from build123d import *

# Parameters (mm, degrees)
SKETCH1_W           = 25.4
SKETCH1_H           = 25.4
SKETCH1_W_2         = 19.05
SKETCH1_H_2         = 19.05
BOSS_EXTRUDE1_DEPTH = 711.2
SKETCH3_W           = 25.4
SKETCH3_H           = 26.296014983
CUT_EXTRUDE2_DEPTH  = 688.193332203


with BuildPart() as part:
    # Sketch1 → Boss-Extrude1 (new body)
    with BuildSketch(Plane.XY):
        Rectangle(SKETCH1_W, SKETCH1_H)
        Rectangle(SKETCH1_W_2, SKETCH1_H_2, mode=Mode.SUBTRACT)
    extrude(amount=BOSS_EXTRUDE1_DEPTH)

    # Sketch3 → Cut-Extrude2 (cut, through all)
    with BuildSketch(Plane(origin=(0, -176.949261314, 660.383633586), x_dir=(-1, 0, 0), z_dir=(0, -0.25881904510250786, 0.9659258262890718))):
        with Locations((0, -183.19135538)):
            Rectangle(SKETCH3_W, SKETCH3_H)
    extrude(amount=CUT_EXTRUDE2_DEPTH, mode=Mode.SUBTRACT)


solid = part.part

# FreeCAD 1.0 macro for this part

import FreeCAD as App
import Part
import Sketcher
Q = App.Units.Quantity

doc = App.newDocument("Part")
body = doc.addObject("PartDesign::Body", "Body")

# Sketch on XY plane
sketch1 = body.newObject("Sketcher::SketchObject", "Sketch")
sketch1.AttachmentSupport = (doc.getObject("XY_Plane"), [""])
sketch1.MapMode = "FlatFace"
sketch1.addGeometry(Part.LineSegment(App.Vector(-12.7, 12.7, 0), App.Vector(-12.7, -12.7, 0)), False)
sketch1.addGeometry(Part.LineSegment(App.Vector(-12.7, -12.7, 0), App.Vector(12.7, -12.7, 0)), False)
sketch1.addGeometry(Part.LineSegment(App.Vector(12.7, -12.7, 0), App.Vector(12.7, 12.7, 0)), False)
sketch1.addGeometry(Part.LineSegment(App.Vector(12.7, 12.7, 0), App.Vector(-12.7, 12.7, 0)), False)
sketch1.addGeometry(Part.LineSegment(App.Vector(9.525, -9.525, 0), App.Vector(-9.525, -9.525, 0)), False)
sketch1.addGeometry(Part.LineSegment(App.Vector(-9.525, -9.525, 0), App.Vector(-9.525, 9.525, 0)), False)
sketch1.addGeometry(Part.LineSegment(App.Vector(-9.525, 9.525, 0), App.Vector(9.525, 9.525, 0)), False)
sketch1.addGeometry(Part.LineSegment(App.Vector(9.525, 9.525, 0), App.Vector(9.525, -9.525, 0)), False)
sketch1.addConstraint(Sketcher.Constraint("Coincident", 0, 2, 1, 1))
sketch1.addConstraint(Sketcher.Constraint("Coincident", 1, 2, 2, 1))
sketch1.addConstraint(Sketcher.Constraint("Coincident", 2, 2, 3, 1))
sketch1.addConstraint(Sketcher.Constraint("Coincident", 3, 2, 0, 1))
sketch1.addConstraint(Sketcher.Constraint("Coincident", 4, 2, 5, 1))
sketch1.addConstraint(Sketcher.Constraint("Coincident", 5, 2, 6, 1))
sketch1.addConstraint(Sketcher.Constraint("Coincident", 6, 2, 7, 1))
sketch1.addConstraint(Sketcher.Constraint("Coincident", 7, 2, 4, 1))
sketch1.addConstraint(Sketcher.Constraint("Vertical", 0))
sketch1.addConstraint(Sketcher.Constraint("Horizontal", 1))
sketch1.addConstraint(Sketcher.Constraint("Vertical", 2))
sketch1.addConstraint(Sketcher.Constraint("Horizontal", 3))
sketch1.addConstraint(Sketcher.Constraint("Horizontal", 4))
sketch1.addConstraint(Sketcher.Constraint("Vertical", 5))
sketch1.addConstraint(Sketcher.Constraint("Horizontal", 6))
sketch1.addConstraint(Sketcher.Constraint("Vertical", 7))
sketch1.addConstraint(Sketcher.Constraint("Symmetric", 0, 2, 2, 2, -1, 1))
sketch1.addConstraint(Sketcher.Constraint("Symmetric", 4, 2, 6, 2, -1, 1))
sketch1.addConstraint(Sketcher.Constraint("Equal", 3, 0))
sketch1.addConstraint(Sketcher.Constraint("Equal", 6, 5))
sketch1.addConstraint(Sketcher.Constraint("DistanceX", 1, 1, 1, 2, Q("1 in")))
sketch1.addConstraint(Sketcher.Constraint("DistanceX", 4, 2, 4, 1, Q("0.75 in")))
pad1 = body.newObject("PartDesign::Pad", "Pad")
pad1.Profile = sketch1
pad1.Length = Q("28 in")

# Sketch on an angled plane
sketch2 = body.newObject("Sketcher::SketchObject", "Sketch001")
sketch2.Placement = App.Placement(App.Vector(0, -176.949261, 660.383634), App.Rotation(App.Vector(-1, 0, 0), App.Vector(0, -0.965925826, -0.258819045), App.Vector(0, -0.258819045, 0.965925826), "ZXY"))
sketch2.addGeometry(Part.LineSegment(App.Vector(-12.7, -170.043348, 0), App.Vector(-12.7, -196.339363, 0)), False)
sketch2.addGeometry(Part.LineSegment(App.Vector(-12.7, -196.339363, 0), App.Vector(12.7, -196.339363, 0)), False)
sketch2.addGeometry(Part.LineSegment(App.Vector(12.7, -196.339363, 0), App.Vector(12.7, -170.043348, 0)), False)
sketch2.addGeometry(Part.LineSegment(App.Vector(12.7, -170.043348, 0), App.Vector(-12.7, -170.043348, 0)), False)
sketch2.addConstraint(Sketcher.Constraint("Coincident", 0, 2, 1, 1))
sketch2.addConstraint(Sketcher.Constraint("Coincident", 1, 2, 2, 1))
sketch2.addConstraint(Sketcher.Constraint("Coincident", 2, 2, 3, 1))
sketch2.addConstraint(Sketcher.Constraint("Coincident", 3, 2, 0, 1))
sketch2.addConstraint(Sketcher.Constraint("Vertical", 0))
sketch2.addConstraint(Sketcher.Constraint("Horizontal", 1))
sketch2.addConstraint(Sketcher.Constraint("Vertical", 2))
sketch2.addConstraint(Sketcher.Constraint("Horizontal", 3))
sketch2.addConstraint(Sketcher.Constraint("DistanceX", 1, 1, 1, 2, Q("1 in")))
sketch2.addConstraint(Sketcher.Constraint("DistanceX", 0, 2, -1, 1, Q("0.5 in")))
sketch2.addConstraint(Sketcher.Constraint("DistanceY", 0, 2, 0, 1, 26.296015))
sketch2.addConstraint(Sketcher.Constraint("DistanceY", 0, 2, -1, 1, 196.339363))
pocket1 = body.newObject("PartDesign::Pocket", "Pocket")
pocket1.Profile = sketch2
pocket1.Type = "ThroughAll"
pocket1.Reversed = True

doc.recompute()
